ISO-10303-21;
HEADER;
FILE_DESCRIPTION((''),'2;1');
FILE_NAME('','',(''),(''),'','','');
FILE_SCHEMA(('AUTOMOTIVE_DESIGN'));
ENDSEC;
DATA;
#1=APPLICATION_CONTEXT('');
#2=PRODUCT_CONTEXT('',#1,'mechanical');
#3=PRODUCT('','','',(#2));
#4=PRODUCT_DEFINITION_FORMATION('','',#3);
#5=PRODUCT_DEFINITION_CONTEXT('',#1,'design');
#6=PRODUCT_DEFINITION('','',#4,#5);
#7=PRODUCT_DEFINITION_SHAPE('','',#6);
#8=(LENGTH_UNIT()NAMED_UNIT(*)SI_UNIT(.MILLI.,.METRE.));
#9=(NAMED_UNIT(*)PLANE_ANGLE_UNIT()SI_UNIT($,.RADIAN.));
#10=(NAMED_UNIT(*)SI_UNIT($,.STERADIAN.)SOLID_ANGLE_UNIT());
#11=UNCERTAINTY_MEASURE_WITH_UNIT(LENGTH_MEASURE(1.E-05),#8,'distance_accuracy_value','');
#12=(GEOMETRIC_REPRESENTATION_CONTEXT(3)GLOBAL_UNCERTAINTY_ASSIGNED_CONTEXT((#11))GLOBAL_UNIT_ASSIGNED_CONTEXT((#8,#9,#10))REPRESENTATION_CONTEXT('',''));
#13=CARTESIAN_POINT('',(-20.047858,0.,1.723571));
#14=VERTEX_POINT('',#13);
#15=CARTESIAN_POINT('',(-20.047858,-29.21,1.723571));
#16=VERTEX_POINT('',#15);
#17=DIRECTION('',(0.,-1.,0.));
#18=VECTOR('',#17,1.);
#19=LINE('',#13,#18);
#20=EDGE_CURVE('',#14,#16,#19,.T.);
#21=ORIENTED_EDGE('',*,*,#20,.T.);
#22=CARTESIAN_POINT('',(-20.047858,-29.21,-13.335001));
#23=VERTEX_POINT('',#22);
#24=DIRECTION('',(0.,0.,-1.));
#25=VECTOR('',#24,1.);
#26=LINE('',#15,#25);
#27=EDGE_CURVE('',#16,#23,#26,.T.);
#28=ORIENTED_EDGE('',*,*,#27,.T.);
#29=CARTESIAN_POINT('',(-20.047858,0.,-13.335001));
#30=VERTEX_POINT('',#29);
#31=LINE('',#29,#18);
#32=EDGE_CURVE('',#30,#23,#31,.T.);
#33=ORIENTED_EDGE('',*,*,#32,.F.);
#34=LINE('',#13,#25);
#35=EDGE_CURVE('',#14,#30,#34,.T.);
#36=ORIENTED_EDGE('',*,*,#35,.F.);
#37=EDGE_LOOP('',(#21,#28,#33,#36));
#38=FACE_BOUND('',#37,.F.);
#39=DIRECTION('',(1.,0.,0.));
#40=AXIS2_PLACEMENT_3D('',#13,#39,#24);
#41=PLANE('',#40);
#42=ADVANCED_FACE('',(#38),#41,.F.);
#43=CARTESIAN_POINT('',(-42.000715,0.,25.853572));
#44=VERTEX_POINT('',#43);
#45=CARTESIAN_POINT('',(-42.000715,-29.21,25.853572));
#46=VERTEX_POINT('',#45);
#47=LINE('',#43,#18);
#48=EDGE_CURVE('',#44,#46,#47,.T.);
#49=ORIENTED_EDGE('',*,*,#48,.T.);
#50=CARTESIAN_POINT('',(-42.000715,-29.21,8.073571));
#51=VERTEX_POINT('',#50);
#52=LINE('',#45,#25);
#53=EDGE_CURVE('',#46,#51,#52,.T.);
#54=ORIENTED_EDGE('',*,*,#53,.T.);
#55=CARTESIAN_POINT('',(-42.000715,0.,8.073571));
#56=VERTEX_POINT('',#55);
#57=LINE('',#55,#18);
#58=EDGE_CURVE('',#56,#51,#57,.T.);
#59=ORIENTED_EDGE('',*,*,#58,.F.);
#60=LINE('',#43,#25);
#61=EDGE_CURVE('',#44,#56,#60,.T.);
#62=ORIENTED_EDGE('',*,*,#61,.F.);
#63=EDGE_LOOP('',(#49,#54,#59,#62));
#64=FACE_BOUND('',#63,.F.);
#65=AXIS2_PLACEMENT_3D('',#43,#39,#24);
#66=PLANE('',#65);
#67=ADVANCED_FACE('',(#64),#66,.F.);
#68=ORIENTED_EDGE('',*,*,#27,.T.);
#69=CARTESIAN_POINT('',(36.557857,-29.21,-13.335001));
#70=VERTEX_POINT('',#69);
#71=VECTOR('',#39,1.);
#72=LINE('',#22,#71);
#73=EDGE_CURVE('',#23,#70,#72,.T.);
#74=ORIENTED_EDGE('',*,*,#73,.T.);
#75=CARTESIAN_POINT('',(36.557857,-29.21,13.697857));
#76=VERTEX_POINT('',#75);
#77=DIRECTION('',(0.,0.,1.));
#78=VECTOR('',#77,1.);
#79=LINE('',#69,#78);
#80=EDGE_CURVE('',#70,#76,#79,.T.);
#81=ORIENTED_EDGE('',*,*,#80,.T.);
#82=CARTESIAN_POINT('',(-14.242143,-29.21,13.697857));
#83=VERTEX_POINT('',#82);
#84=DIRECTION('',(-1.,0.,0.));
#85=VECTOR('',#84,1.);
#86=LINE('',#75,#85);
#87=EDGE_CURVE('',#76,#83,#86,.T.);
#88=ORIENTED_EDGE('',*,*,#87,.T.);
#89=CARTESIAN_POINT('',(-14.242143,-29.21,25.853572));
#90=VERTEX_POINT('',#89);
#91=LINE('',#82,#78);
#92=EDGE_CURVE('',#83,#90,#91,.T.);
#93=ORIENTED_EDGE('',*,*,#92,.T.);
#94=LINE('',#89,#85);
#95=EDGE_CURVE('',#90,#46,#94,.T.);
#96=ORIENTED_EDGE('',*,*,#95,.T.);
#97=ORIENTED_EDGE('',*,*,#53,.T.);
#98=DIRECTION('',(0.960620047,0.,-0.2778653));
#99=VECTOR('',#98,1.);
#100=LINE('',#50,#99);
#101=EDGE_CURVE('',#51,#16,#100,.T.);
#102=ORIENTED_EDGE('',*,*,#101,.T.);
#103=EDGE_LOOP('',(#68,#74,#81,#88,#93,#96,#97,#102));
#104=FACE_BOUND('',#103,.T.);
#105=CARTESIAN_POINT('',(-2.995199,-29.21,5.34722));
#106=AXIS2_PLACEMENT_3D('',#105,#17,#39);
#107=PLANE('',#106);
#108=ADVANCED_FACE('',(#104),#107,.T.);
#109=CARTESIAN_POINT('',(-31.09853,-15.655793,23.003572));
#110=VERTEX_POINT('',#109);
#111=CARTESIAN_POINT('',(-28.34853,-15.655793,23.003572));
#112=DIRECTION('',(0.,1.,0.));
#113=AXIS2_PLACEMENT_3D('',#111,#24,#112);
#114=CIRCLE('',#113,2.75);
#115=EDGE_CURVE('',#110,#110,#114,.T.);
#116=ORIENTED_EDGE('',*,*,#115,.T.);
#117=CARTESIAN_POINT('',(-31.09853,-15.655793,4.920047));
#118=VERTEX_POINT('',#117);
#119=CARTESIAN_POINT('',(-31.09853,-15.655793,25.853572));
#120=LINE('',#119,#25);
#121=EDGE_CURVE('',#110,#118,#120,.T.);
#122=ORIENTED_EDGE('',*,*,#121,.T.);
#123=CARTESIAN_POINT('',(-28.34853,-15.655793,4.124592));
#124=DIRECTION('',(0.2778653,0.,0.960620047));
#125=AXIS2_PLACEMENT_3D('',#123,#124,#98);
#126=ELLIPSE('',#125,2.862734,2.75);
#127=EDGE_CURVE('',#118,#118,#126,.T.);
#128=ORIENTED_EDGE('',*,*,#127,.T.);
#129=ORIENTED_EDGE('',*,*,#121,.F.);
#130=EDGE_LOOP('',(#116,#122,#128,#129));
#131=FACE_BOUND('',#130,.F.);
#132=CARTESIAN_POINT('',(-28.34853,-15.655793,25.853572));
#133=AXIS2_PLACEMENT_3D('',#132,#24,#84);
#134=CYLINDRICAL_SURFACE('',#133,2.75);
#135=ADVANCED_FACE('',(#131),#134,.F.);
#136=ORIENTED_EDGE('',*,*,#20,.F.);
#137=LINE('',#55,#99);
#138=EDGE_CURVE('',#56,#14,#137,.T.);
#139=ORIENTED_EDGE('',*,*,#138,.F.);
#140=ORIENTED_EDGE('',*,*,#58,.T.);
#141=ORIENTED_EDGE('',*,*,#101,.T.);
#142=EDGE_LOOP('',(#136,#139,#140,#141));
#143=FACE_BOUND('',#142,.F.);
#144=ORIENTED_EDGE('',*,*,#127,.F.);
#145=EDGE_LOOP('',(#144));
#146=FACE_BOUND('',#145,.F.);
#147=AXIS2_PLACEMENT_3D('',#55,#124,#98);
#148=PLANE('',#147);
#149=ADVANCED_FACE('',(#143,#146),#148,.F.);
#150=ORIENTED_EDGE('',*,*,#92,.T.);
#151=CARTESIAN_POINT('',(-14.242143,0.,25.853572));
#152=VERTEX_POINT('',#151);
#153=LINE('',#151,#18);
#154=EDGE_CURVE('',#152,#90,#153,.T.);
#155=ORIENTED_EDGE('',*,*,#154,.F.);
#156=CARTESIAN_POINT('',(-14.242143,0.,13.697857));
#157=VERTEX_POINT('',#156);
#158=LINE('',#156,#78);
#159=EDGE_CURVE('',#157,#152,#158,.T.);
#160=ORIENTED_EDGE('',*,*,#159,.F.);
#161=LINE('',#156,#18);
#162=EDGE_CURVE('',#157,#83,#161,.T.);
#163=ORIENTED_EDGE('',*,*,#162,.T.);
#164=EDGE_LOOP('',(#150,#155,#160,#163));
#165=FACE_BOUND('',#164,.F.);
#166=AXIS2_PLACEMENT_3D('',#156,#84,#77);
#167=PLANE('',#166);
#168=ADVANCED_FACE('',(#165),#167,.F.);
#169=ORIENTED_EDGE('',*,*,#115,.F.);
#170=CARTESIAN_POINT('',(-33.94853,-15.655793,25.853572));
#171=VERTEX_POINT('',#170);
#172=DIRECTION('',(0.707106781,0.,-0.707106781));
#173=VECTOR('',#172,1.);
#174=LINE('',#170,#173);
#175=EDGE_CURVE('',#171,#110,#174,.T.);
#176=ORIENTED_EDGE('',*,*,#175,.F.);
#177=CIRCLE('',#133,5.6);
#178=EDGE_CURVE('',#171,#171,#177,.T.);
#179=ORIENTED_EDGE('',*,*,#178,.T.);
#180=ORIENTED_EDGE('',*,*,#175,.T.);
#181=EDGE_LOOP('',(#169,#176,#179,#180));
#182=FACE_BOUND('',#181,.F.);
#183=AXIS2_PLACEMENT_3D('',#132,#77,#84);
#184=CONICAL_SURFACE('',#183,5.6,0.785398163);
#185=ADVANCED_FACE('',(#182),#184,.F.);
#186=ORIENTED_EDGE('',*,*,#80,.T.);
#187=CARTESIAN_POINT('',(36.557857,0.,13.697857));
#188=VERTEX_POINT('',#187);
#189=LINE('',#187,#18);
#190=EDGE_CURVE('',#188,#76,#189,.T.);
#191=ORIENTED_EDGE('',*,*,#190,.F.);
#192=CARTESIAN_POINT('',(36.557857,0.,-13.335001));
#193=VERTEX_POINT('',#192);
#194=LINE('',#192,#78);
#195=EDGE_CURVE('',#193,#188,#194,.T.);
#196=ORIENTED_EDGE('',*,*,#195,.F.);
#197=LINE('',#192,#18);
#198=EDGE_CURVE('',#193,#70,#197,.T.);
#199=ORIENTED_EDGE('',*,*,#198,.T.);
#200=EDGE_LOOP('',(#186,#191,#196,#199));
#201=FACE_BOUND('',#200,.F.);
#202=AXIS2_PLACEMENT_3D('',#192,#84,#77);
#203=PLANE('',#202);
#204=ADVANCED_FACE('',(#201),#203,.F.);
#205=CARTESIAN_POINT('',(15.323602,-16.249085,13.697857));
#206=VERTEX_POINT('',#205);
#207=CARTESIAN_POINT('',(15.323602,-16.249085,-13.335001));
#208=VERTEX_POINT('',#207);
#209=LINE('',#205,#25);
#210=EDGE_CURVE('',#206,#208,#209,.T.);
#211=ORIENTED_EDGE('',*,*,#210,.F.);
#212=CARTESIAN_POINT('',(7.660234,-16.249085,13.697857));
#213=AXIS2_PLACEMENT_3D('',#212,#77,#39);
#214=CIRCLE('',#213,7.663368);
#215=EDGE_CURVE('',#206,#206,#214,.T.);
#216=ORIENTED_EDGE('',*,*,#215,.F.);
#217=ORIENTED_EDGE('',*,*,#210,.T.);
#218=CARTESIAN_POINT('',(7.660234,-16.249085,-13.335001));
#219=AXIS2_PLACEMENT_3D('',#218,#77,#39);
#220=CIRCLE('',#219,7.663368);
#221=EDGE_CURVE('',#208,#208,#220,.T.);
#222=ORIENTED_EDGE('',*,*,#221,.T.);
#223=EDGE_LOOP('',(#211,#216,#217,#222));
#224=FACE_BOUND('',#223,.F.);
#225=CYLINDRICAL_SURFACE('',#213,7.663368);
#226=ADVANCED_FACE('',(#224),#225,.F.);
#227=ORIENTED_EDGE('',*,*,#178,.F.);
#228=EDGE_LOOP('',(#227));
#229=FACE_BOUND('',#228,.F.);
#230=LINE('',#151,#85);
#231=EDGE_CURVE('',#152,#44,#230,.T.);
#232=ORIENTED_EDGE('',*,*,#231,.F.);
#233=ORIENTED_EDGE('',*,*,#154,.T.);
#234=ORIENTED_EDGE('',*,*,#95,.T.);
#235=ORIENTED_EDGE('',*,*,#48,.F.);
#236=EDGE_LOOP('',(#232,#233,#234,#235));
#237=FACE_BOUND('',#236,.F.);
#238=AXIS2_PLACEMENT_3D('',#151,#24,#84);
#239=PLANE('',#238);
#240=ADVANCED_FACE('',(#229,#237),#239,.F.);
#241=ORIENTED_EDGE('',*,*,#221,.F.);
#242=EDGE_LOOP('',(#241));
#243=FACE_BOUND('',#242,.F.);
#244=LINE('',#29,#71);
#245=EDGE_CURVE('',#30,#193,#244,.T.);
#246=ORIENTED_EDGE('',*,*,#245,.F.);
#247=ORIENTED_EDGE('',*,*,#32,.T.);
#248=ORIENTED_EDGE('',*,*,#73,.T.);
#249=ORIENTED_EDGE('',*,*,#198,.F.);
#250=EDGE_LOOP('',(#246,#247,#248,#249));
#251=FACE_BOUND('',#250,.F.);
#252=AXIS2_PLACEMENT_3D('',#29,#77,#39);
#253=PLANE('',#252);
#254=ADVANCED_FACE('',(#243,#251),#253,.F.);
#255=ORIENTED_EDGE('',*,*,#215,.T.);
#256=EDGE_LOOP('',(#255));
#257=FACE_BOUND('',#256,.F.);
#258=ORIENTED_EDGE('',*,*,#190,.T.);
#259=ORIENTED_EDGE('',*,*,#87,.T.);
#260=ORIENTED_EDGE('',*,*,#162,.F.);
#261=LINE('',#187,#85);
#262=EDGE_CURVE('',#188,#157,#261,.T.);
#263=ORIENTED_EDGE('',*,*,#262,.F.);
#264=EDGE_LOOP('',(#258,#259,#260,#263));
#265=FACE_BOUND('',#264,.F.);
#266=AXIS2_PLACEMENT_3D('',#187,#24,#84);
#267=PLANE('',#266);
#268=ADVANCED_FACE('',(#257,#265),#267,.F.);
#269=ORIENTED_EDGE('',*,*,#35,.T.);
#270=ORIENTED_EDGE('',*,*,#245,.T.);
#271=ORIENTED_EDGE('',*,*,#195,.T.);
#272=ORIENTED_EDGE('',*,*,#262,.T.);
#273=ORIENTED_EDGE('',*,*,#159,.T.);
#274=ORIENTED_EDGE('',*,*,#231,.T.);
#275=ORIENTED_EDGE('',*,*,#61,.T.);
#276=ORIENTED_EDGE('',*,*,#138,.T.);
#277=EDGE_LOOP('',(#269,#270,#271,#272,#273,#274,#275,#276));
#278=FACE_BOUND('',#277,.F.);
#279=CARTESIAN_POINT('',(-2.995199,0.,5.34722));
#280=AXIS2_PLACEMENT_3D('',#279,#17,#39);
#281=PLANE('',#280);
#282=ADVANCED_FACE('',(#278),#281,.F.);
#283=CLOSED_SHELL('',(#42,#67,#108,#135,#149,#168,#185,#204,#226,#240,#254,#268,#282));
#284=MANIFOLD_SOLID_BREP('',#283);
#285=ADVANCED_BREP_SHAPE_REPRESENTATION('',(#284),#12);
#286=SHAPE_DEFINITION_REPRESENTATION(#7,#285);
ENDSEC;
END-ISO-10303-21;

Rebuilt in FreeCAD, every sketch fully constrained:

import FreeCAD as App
import Part
import Sketcher
Q = App.Units.Quantity


def add_polygon(sketch, points):
    """Adds a closed chain of lines whose ends are joined by coincident constraints."""
    first, n = sketch.GeometryCount, len(points)
    for a, b in zip(points, points[1:] + points[:1]):
        sketch.addGeometry(Part.LineSegment(App.Vector(*a, 0), App.Vector(*b, 0)), False)
    for i in range(n):
        sketch.addConstraint(Sketcher.Constraint("Coincident", first + i, 2, first + (i + 1) % n, 1))

doc = App.newDocument("Part")
body = doc.addObject("PartDesign::Body", "Body")

# Sketch on XZ plane
sketch1 = doc.addObject("Sketcher::SketchObject", "Sketch")
body.addObject(sketch1)
sketch1.AttachmentSupport = (doc.XZ_Plane, [""])
sketch1.MapMode = "FlatFace"
add_polygon(sketch1, [(-42, 26), (-42, 8), (-20, 2), (-20, -13), (37, -13), (37, 14), (-14, 14), (-14, 26)])  # lines 0-7
sketch1.addConstraint([
    Sketcher.Constraint("Vertical", 0),
    Sketcher.Constraint("Vertical", 2),
    Sketcher.Constraint("Horizontal", 3),
    Sketcher.Constraint("Vertical", 4),
    Sketcher.Constraint("Horizontal", 5),
    Sketcher.Constraint("Vertical", 6),
    Sketcher.Constraint("Horizontal", 7),
    Sketcher.Constraint("DistanceX", 5, 2, 5, 1, Q("2 in")),
    Sketcher.Constraint("DistanceY", 0, 2, 0, 1, Q("0.7000001 in")),
    Sketcher.Constraint("DistanceY", 1, 2, 0, 2, Q("0.25 in")),
    Sketcher.Constraint("DistanceY", 2, 2, -1, 1, Q("0.525 in")),
    Sketcher.Constraint("Distance", 1, 22.852798),
    Sketcher.Constraint("DistanceX", 7, 2, 7, 1, 27.758571),
    Sketcher.Constraint("DistanceY", 2, 2, 2, 1, 15.058572),
    Sketcher.Constraint("DistanceY", 4, 1, 4, 2, 27.032858),
    Sketcher.Constraint("DistanceX", 1, 2, -1, 1, 20.047858),
])
pad1 = doc.addObject("PartDesign::Pad", "Pad")
body.addObject(pad1)
pad1.Profile = sketch1
pad1.Length = Q("1.15 in")

# Sketch on XY plane
sketch2 = doc.addObject("Sketcher::SketchObject", "Sketch001")
body.addObject(sketch2)
sketch2.AttachmentSupport = (doc.XY_Plane, [""])
sketch2.MapMode = "FlatFace"
sketch2.AttachmentOffset = App.Placement(App.Vector(0, 0, 13.697857), App.Rotation())
sketch2.addGeometry(Part.Circle(App.Vector(8, -16, 0), App.Vector(0, 0, 1), 8), False)
sketch2.addConstraint([
    Sketcher.Constraint("Diameter", 0, 15.326736),
    Sketcher.Constraint("DistanceX", -1, 1, 0, 3, 7.660234),
    Sketcher.Constraint("DistanceY", 0, 3, -1, 1, 16.249085),
])
pocket1 = doc.addObject("PartDesign::Pocket", "Pocket")
body.addObject(pocket1)
pocket1.Profile = sketch2
pocket1.Length = Q("1.63 in")

# Sketch on XY plane
sketch3 = doc.addObject("Sketcher::SketchObject", "Sketch002")
body.addObject(sketch3)
sketch3.AttachmentSupport = (doc.XY_Plane, [""])
sketch3.MapMode = "FlatFace"
sketch3.AttachmentOffset = App.Placement(App.Vector(0, 0, 25.853572), App.Rotation())
sketch3.addGeometry(Part.Circle(App.Vector(-28.3, -15.7, 0), App.Vector(0, 0, 1), 2.8), False)
sketch3.addConstraint([
    Sketcher.Constraint("Diameter", 0, 5.5),
    Sketcher.Constraint("DistanceX", 0, 3, -1, 1, 28.34853),
    Sketcher.Constraint("DistanceY", 0, 3, -1, 1, 15.655793),
])
doc.recompute()
hole = doc.addObject("PartDesign::Hole", "Hole")
body.addObject(hole)
hole.Profile = sketch3
hole.ThreadType = "None"
hole.Diameter = 5.5
hole.DepthType = "ThroughAll"
hole.HoleCutType = "Countersink"
hole.HoleCutDiameter = 11.2
hole.HoleCutCountersinkAngle = 90

doc.recompute()
